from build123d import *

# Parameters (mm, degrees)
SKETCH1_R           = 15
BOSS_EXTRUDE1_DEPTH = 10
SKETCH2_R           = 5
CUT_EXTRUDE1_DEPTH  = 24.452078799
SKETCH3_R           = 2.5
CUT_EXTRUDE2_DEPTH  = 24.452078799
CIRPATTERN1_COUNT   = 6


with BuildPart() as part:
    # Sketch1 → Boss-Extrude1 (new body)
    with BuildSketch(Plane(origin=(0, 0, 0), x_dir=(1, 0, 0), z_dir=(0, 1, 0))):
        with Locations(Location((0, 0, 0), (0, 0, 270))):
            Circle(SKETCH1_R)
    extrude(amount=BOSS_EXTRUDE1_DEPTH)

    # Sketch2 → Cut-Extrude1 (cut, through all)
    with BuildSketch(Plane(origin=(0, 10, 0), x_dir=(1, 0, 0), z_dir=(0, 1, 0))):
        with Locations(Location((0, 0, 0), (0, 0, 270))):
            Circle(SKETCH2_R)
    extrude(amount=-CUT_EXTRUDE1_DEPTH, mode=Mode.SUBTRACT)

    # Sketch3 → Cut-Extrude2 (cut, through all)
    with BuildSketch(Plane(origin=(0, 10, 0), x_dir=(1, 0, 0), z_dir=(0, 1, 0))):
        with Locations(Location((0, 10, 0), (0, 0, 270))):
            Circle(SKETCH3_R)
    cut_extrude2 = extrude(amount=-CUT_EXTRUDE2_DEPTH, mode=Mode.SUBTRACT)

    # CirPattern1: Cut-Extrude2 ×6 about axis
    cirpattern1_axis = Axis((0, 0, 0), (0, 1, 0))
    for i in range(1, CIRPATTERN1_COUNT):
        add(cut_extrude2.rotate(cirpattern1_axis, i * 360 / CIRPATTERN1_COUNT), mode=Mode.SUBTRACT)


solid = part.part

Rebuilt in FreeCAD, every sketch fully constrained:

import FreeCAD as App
import Part
import Sketcher
from FreeCAD import Vector
Q = App.Units.Quantity

doc = App.newDocument("Part")
body = doc.addObject("PartDesign::Body", "Body")

# Sketch on XZ plane
sketch1 = body.newObject("Sketcher::SketchObject", "Sketch")
sketch1.AttachmentSupport = (doc.getObject("XZ_Plane"), [""])
sketch1.MapMode = "FlatFace"
sketch1.addGeometry(Part.Circle(Vector(0, 0, 0), Vector(0, 0, 1), 15), False)
sketch1.addConstraint(Sketcher.Constraint("Coincident", 0, 3, -1, 1))
sketch1.addConstraint(Sketcher.Constraint("Diameter", 0, Q("30 mm")))
pad1 = body.newObject("PartDesign::Pad", "Pad")
pad1.Profile = sketch1
pad1.Length = 10
pad1.Reversed = True

# Sketch on XZ plane
sketch2 = body.newObject("Sketcher::SketchObject", "Sketch001")
sketch2.AttachmentSupport = (doc.getObject("XZ_Plane"), [""])
sketch2.MapMode = "FlatFace"
sketch2.AttachmentOffset = App.Placement(Vector(0, 0, -10), App.Rotation())
sketch2.addGeometry(Part.Circle(Vector(0, 0, 0), Vector(0, 0, 1), 5), False)
sketch2.addConstraint(Sketcher.Constraint("Coincident", 0, 3, -1, 1))
sketch2.addConstraint(Sketcher.Constraint("Diameter", 0, Q("10 mm")))
pocket1 = body.newObject("PartDesign::Pocket", "Pocket")
pocket1.Profile = sketch2
pocket1.Type = "ThroughAll"
pocket1.Reversed = True

# Sketch on XZ plane
sketch3 = body.newObject("Sketcher::SketchObject", "Sketch002")
sketch3.AttachmentSupport = (doc.getObject("XZ_Plane"), [""])
sketch3.MapMode = "FlatFace"
sketch3.AttachmentOffset = App.Placement(Vector(0, 0, -10), App.Rotation())
sketch3.addGeometry(Part.Circle(Vector(0, -10, 0), Vector(0, 0, 1), 2.5), False)
sketch3.addConstraint(Sketcher.Constraint("PointOnObject", 0, 3, -2))
sketch3.addConstraint(Sketcher.Constraint("Diameter", 0, Q("5 mm")))
sketch3.addConstraint(Sketcher.Constraint("DistanceY", 0, 3, -1, 1, Q("10 mm")))
pocket2 = body.newObject("PartDesign::Pocket", "Pocket001")
pocket2.Profile = sketch3
pocket2.Type = "ThroughAll"
pocket2.Reversed = True
doc.recompute()

polarpattern = body.newObject("PartDesign::PolarPattern", "PolarPattern")
polarpattern.Originals = [pocket2]
polarpattern.Axis = (doc.getObject("Y_Axis"), [""])
polarpattern.Angle = 360
polarpattern.Occurrences = 6
body.Tip = polarpattern

doc.recompute()
